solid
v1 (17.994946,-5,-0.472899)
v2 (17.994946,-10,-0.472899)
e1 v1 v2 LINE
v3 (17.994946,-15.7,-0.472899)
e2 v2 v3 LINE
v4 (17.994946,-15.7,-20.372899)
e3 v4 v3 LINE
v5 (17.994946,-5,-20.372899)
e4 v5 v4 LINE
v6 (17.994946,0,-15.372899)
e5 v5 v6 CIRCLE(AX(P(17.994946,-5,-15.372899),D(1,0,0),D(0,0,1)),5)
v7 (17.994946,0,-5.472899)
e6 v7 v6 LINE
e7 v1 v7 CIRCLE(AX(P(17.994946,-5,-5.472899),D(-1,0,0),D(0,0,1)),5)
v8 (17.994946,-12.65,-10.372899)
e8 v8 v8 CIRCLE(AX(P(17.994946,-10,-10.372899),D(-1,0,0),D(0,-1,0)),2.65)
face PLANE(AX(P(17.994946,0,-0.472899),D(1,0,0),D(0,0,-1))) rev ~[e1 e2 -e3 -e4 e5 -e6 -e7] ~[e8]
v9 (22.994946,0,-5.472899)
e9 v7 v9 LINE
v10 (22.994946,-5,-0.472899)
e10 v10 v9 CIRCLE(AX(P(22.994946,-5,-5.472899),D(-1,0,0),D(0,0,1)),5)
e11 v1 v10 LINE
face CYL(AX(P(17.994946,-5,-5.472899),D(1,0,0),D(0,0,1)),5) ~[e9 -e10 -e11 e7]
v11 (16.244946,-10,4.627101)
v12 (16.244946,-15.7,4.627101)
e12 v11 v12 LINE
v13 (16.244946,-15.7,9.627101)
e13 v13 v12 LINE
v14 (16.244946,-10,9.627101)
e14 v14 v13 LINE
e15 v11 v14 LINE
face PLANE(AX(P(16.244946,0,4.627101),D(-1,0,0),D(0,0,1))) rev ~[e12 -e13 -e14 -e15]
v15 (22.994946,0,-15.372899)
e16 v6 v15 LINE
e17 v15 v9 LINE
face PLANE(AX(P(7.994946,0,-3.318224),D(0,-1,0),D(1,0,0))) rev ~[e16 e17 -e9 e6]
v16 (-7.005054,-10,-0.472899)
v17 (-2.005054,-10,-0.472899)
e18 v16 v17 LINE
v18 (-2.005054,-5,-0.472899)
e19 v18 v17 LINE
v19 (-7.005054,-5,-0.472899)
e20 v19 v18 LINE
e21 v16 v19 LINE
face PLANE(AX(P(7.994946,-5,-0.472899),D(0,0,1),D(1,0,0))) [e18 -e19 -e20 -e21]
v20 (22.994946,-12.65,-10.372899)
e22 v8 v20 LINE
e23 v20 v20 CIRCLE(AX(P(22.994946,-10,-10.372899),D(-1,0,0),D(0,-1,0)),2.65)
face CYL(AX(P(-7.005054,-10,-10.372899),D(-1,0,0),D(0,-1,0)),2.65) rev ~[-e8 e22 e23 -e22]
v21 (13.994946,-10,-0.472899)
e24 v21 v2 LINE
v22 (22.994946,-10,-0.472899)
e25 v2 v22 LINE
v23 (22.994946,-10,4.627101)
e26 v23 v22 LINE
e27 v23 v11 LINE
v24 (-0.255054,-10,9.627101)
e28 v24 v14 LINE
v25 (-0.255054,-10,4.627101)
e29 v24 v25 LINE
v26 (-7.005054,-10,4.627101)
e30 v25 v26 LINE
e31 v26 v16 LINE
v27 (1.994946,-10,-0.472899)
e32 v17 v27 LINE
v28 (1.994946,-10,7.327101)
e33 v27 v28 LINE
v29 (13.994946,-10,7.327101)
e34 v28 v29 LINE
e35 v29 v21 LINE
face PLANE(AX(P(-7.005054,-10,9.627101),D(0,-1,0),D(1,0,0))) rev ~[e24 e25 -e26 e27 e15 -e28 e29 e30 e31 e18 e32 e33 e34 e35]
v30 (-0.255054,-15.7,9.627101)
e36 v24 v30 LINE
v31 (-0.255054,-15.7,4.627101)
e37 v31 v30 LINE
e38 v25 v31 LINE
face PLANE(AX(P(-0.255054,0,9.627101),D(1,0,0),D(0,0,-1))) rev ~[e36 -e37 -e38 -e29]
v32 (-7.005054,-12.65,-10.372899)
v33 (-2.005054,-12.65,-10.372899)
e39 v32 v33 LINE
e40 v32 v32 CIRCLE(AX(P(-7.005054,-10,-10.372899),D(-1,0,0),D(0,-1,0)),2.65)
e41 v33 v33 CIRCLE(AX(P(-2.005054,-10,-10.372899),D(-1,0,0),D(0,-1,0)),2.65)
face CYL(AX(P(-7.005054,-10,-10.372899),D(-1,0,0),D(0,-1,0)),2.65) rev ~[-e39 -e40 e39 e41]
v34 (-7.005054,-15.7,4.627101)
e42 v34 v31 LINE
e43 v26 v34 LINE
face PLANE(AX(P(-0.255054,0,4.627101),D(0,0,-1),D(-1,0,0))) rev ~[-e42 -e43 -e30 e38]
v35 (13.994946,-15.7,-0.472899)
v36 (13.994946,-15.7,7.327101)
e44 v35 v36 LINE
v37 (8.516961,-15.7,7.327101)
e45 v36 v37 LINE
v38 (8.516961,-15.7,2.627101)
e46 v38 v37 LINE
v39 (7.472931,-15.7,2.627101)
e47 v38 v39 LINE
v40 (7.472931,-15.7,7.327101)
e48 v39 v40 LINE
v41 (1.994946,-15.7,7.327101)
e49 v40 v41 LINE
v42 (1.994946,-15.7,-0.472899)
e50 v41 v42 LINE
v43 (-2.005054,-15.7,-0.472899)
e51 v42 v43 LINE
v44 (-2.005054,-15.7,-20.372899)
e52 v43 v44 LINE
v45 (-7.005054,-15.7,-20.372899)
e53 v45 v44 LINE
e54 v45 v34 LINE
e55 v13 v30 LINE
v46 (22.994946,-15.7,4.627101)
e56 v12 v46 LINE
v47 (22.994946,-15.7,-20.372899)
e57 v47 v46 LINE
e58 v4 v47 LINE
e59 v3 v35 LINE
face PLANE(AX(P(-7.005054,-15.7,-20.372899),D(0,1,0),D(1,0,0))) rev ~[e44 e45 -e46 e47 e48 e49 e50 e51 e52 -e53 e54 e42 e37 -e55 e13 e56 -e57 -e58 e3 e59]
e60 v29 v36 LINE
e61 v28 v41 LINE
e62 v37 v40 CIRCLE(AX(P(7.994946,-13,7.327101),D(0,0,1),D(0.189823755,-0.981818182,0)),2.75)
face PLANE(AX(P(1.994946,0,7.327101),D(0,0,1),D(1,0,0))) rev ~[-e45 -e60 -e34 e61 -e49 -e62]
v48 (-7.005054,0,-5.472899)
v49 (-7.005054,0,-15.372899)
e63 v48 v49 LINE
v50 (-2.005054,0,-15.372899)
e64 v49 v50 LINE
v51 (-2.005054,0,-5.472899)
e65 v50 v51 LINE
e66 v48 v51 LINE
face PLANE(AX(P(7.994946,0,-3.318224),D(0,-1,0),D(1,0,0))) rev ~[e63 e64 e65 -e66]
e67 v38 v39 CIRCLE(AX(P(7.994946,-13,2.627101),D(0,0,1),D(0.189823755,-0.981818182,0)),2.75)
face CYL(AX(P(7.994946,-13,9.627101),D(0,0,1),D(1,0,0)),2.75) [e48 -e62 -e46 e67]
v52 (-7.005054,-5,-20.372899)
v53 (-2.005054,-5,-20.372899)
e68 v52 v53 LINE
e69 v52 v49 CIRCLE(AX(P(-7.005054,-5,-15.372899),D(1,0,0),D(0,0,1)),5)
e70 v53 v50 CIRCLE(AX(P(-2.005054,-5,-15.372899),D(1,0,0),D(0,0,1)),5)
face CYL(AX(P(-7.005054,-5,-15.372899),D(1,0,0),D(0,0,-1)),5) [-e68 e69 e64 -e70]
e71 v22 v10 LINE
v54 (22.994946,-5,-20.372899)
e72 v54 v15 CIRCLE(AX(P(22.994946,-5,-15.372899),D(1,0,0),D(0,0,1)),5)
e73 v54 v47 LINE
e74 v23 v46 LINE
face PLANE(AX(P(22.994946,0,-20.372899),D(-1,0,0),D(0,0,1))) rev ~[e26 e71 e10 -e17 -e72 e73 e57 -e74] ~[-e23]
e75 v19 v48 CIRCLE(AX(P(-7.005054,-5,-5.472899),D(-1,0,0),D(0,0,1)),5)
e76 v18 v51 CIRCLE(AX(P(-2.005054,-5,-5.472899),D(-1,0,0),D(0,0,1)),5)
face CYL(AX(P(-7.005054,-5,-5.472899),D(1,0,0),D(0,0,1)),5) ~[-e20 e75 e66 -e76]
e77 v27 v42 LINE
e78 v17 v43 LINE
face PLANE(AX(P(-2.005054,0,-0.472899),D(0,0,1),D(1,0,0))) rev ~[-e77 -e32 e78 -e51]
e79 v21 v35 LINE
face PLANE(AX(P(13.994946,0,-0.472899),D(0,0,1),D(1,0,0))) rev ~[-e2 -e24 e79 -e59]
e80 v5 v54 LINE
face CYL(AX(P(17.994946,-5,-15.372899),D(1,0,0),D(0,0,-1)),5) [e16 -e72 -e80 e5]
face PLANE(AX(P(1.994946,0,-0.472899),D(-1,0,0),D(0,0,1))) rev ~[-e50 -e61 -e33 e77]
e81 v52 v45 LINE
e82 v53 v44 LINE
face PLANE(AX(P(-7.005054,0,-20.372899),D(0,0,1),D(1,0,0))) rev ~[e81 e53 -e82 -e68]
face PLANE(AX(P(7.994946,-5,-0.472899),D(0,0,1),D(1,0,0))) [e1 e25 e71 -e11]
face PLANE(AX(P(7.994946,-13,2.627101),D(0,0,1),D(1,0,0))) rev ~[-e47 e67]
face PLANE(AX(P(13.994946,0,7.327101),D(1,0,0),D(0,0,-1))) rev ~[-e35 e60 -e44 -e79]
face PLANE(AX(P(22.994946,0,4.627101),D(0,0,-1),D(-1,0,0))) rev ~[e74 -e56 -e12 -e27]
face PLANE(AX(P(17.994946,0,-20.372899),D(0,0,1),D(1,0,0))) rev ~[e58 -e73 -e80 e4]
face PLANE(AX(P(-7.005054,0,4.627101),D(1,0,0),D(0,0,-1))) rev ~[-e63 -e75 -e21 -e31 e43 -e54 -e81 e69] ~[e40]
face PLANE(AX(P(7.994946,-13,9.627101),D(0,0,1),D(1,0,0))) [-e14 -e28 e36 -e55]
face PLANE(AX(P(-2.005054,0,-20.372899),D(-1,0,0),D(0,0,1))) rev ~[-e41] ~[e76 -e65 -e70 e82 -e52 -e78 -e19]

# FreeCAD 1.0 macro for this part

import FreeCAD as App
import Part
import Sketcher


def edges_at(feature, points):
    """Names of the edges that pass closest to the given points."""
    edges = feature.Shape.Edges
    near = lambda p: min(range(len(edges)), key=lambda i: edges[i].distToShape(Part.Vertex(*p))[0])
    return sorted({f"Edge{near(p) + 1}" for p in points})

doc = App.newDocument("Part")
body = doc.addObject("PartDesign::Body", "Body")

# Sketch on XZ plane
sketch1 = body.newObject("Sketcher::SketchObject", "Sketch")
sketch1.AttachmentSupport = (doc.getObject("XZ_Plane"), [""])
sketch1.MapMode = "FlatFace"
sketch1.addGeometry(Part.LineSegment(App.Vector(-0.255054, 4.627101, 0), App.Vector(-7.005054, 4.627101, 0)), False)
sketch1.addGeometry(Part.LineSegment(App.Vector(-7.005054, 4.627101, 0), App.Vector(-7.005054, -20.372899, 0)), False)
sketch1.addGeometry(Part.LineSegment(App.Vector(-7.005054, -20.372899, 0), App.Vector(-2.005054, -20.372899, 0)), False)
sketch1.addGeometry(Part.LineSegment(App.Vector(-2.005054, -20.372899, 0), App.Vector(-2.005054, -0.472899, 0)), False)
sketch1.addGeometry(Part.LineSegment(App.Vector(-2.005054, -0.472899, 0), App.Vector(1.994946, -0.472899, 0)), False)
sketch1.addGeometry(Part.LineSegment(App.Vector(1.994946, -0.472899, 0), App.Vector(1.994946, 7.327101, 0)), False)
sketch1.addGeometry(Part.LineSegment(App.Vector(1.994946, 7.327101, 0), App.Vector(13.994946, 7.327101, 0)), False)
sketch1.addGeometry(Part.LineSegment(App.Vector(13.994946, 7.327101, 0), App.Vector(13.994946, -0.472899, 0)), False)
sketch1.addGeometry(Part.LineSegment(App.Vector(13.994946, -0.472899, 0), App.Vector(17.994946, -0.472899, 0)), False)
sketch1.addGeometry(Part.LineSegment(App.Vector(17.994946, -0.472899, 0), App.Vector(17.994946, -20.372899, 0)), False)
sketch1.addGeometry(Part.LineSegment(App.Vector(17.994946, -20.372899, 0), App.Vector(22.994946, -20.372899, 0)), False)
sketch1.addGeometry(Part.LineSegment(App.Vector(22.994946, -20.372899, 0), App.Vector(22.994946, 4.627101, 0)), False)
sketch1.addGeometry(Part.LineSegment(App.Vector(22.994946, 4.627101, 0), App.Vector(16.244946, 4.627101, 0)), False)
sketch1.addGeometry(Part.LineSegment(App.Vector(16.244946, 4.627101, 0), App.Vector(16.244946, 9.627101, 0)), False)
sketch1.addGeometry(Part.LineSegment(App.Vector(16.244946, 9.627101, 0), App.Vector(-0.255054, 9.627101, 0)), False)
sketch1.addGeometry(Part.LineSegment(App.Vector(-0.255054, 9.627101, 0), App.Vector(-0.255054, 4.627101, 0)), False)
sketch1.addConstraint(Sketcher.Constraint("Coincident", 0, 2, 1, 1))
sketch1.addConstraint(Sketcher.Constraint("Coincident", 1, 2, 2, 1))
sketch1.addConstraint(Sketcher.Constraint("Coincident", 2, 2, 3, 1))
sketch1.addConstraint(Sketcher.Constraint("Coincident", 3, 2, 4, 1))
sketch1.addConstraint(Sketcher.Constraint("Coincident", 4, 2, 5, 1))
sketch1.addConstraint(Sketcher.Constraint("Coincident", 5, 2, 6, 1))
sketch1.addConstraint(Sketcher.Constraint("Coincident", 6, 2, 7, 1))
sketch1.addConstraint(Sketcher.Constraint("Coincident", 7, 2, 8, 1))
sketch1.addConstraint(Sketcher.Constraint("Coincident", 8, 2, 9, 1))
sketch1.addConstraint(Sketcher.Constraint("Coincident", 9, 2, 10, 1))
sketch1.addConstraint(Sketcher.Constraint("Coincident", 10, 2, 11, 1))
sketch1.addConstraint(Sketcher.Constraint("Coincident", 11, 2, 12, 1))
sketch1.addConstraint(Sketcher.Constraint("Coincident", 12, 2, 13, 1))
sketch1.addConstraint(Sketcher.Constraint("Coincident", 13, 2, 14, 1))
sketch1.addConstraint(Sketcher.Constraint("Coincident", 14, 2, 15, 1))
sketch1.addConstraint(Sketcher.Constraint("Coincident", 15, 2, 0, 1))
sketch1.addConstraint(Sketcher.Constraint("Horizontal", 0))
sketch1.addConstraint(Sketcher.Constraint("Vertical", 1))
sketch1.addConstraint(Sketcher.Constraint("Horizontal", 2))
sketch1.addConstraint(Sketcher.Constraint("Vertical", 3))
sketch1.addConstraint(Sketcher.Constraint("Horizontal", 4))
sketch1.addConstraint(Sketcher.Constraint("Vertical", 5))
sketch1.addConstraint(Sketcher.Constraint("Horizontal", 6))
sketch1.addConstraint(Sketcher.Constraint("Vertical", 7))
sketch1.addConstraint(Sketcher.Constraint("Horizontal", 8))
sketch1.addConstraint(Sketcher.Constraint("Vertical", 9))
sketch1.addConstraint(Sketcher.Constraint("Horizontal", 10))
sketch1.addConstraint(Sketcher.Constraint("Vertical", 11))
sketch1.addConstraint(Sketcher.Constraint("Horizontal", 12))
sketch1.addConstraint(Sketcher.Constraint("Vertical", 13))
sketch1.addConstraint(Sketcher.Constraint("Horizontal", 14))
sketch1.addConstraint(Sketcher.Constraint("Vertical", 15))
sketch1.addConstraint(Sketcher.Constraint("Horizontal", 4, 2, 7, 2))
sketch1.addConstraint(Sketcher.Constraint("Horizontal", 2, 2, 9, 2))
sketch1.addConstraint(Sketcher.Constraint("Horizontal", 0, 2, 11, 2))
sketch1.addConstraint(Sketcher.Constraint("Equal", 4, 8))
sketch1.addConstraint(Sketcher.Constraint("Equal", 2, 10))
sketch1.addConstraint(Sketcher.Constraint("Equal", 0, 12))
sketch1.addConstraint(Sketcher.Constraint("Equal", 10, 13))
sketch1.addConstraint(Sketcher.Constraint("DistanceX", 2, 1, 2, 2, 5.0))
sketch1.addConstraint(Sketcher.Constraint("DistanceX", 4, 1, 4, 2, 4.0))
sketch1.addConstraint(Sketcher.Constraint("DistanceX", 6, 1, 6, 2, 12.0))
sketch1.addConstraint(Sketcher.Constraint("DistanceY", 1, 2, 1, 1, 25.0))
sketch1.addConstraint(Sketcher.Constraint("DistanceX", 14, 2, 14, 1, 16.5))
sketch1.addConstraint(Sketcher.Constraint("DistanceY", 3, 1, 3, 2, 19.9))
sketch1.addConstraint(Sketcher.Constraint("DistanceY", 5, 1, 5, 2, 7.8))
sketch1.addConstraint(Sketcher.Constraint("DistanceY", -1, 1, 0, 2, 4.627101))
sketch1.addConstraint(Sketcher.Constraint("DistanceX", 0, 2, -1, 1, 7.005054))
pad1 = body.newObject("PartDesign::Pad", "Pad")
pad1.Profile = sketch1
pad1.Length = 20

# Sketch on YZ plane
sketch2 = body.newObject("Sketcher::SketchObject", "Sketch001")
sketch2.AttachmentSupport = (doc.getObject("YZ_Plane"), [""])
sketch2.MapMode = "FlatFace"
sketch2.AttachmentOffset = App.Placement(App.Vector(0, 0, -7.005054), App.Rotation())
sketch2.addGeometry(Part.Circle(App.Vector(-10, -10.372899, 0), App.Vector(0, 0, 1), 2.65), False)
sketch2.addConstraint(Sketcher.Constraint("Diameter", 0, 5.3))
sketch2.addConstraint(Sketcher.Constraint("DistanceX", 0, 3, -1, 1, 10.0))
sketch2.addConstraint(Sketcher.Constraint("DistanceY", 0, 3, -1, 1, 10.372899))
pocket1 = body.newObject("PartDesign::Pocket", "Pocket")
pocket1.Profile = sketch2
pocket1.Type = "ThroughAll"
pocket1.Reversed = True

# Sketch on XY plane
sketch3 = body.newObject("Sketcher::SketchObject", "Sketch002")
sketch3.AttachmentSupport = (doc.getObject("XY_Plane"), [""])
sketch3.MapMode = "FlatFace"
sketch3.AttachmentOffset = App.Placement(App.Vector(0, 0, 9.627101), App.Rotation())
sketch3.addGeometry(Part.Circle(App.Vector(7.994946, -13, 0), App.Vector(0, 0, 1), 2.75), False)
sketch3.addConstraint(Sketcher.Constraint("Diameter", 0, 5.5))
sketch3.addConstraint(Sketcher.Constraint("DistanceY", 0, 3, -1, 1, 13.0))
sketch3.addConstraint(Sketcher.Constraint("DistanceX", -1, 1, 0, 3, 7.994946))
pad2 = body.newObject("PartDesign::Pad", "Pad001")
pad2.Profile = sketch3
pad2.Length = 7
pad2.Reversed = True

# Sketch on XY plane
sketch4 = body.newObject("Sketcher::SketchObject", "Sketch003")
sketch4.AttachmentSupport = (doc.getObject("XY_Plane"), [""])
sketch4.MapMode = "FlatFace"
sketch4.AttachmentOffset = App.Placement(App.Vector(0, 0, 9.627101), App.Rotation())
sketch4.addGeometry(Part.LineSegment(App.Vector(-7.005054, 0, 0), App.Vector(-7.005054, -10, 0)), False)
sketch4.addGeometry(Part.LineSegment(App.Vector(-7.005054, -10, 0), App.Vector(22.994946, -10, 0)), False)
sketch4.addGeometry(Part.LineSegment(App.Vector(22.994946, -10, 0), App.Vector(22.994946, 0, 0)), False)
sketch4.addGeometry(Part.LineSegment(App.Vector(22.994946, 0, 0), App.Vector(-7.005054, 0, 0)), False)
sketch4.addConstraint(Sketcher.Constraint("Coincident", 0, 2, 1, 1))
sketch4.addConstraint(Sketcher.Constraint("Coincident", 1, 2, 2, 1))
sketch4.addConstraint(Sketcher.Constraint("Coincident", 2, 2, 3, 1))
sketch4.addConstraint(Sketcher.Constraint("Coincident", 3, 2, 0, 1))
sketch4.addConstraint(Sketcher.Constraint("Vertical", 0))
sketch4.addConstraint(Sketcher.Constraint("Horizontal", 1))
sketch4.addConstraint(Sketcher.Constraint("Vertical", 2))
sketch4.addConstraint(Sketcher.Constraint("Horizontal", 3))
sketch4.addConstraint(Sketcher.Constraint("PointOnObject", 2, 2, -1))
sketch4.addConstraint(Sketcher.Constraint("DistanceX", 1, 1, 1, 2, 30.0))
sketch4.addConstraint(Sketcher.Constraint("DistanceY", 0, 2, 0, 1, 10.0))
sketch4.addConstraint(Sketcher.Constraint("DistanceX", 0, 2, -1, 1, 7.005054))
pocket2 = body.newObject("PartDesign::Pocket", "Pocket001")
pocket2.Profile = sketch4
pocket2.Length = 10.1
doc.recompute()

fillet = body.newObject("PartDesign::Fillet", "Fillet")
fillet.Base = (pocket2, edges_at(pocket2, [(20.495, 0, -0.473), (-4.505, 0, -0.473)]))
fillet.Radius = 5

# Sketch on XY plane
sketch5 = body.newObject("Sketcher::SketchObject", "Sketch004")
sketch5.AttachmentSupport = (doc.getObject("XY_Plane"), [""])
sketch5.MapMode = "FlatFace"
sketch5.AttachmentOffset = App.Placement(App.Vector(0, 0, -20.372899), App.Rotation())
sketch5.addGeometry(Part.LineSegment(App.Vector(-7.005054, -20, 0), App.Vector(-7.005054, -15.7, 0)), False)
sketch5.addGeometry(Part.LineSegment(App.Vector(-7.005054, -15.7, 0), App.Vector(22.994946, -15.7, 0)), False)
sketch5.addGeometry(Part.LineSegment(App.Vector(22.994946, -15.7, 0), App.Vector(22.994946, -20, 0)), False)
sketch5.addGeometry(Part.LineSegment(App.Vector(22.994946, -20, 0), App.Vector(-7.005054, -20, 0)), False)
sketch5.addConstraint(Sketcher.Constraint("Coincident", 0, 2, 1, 1))
sketch5.addConstraint(Sketcher.Constraint("Coincident", 1, 2, 2, 1))
sketch5.addConstraint(Sketcher.Constraint("Coincident", 2, 2, 3, 1))
sketch5.addConstraint(Sketcher.Constraint("Coincident", 3, 2, 0, 1))
sketch5.addConstraint(Sketcher.Constraint("Vertical", 0))
sketch5.addConstraint(Sketcher.Constraint("Horizontal", 1))
sketch5.addConstraint(Sketcher.Constraint("Vertical", 2))
sketch5.addConstraint(Sketcher.Constraint("Horizontal", 3))
sketch5.addConstraint(Sketcher.Constraint("DistanceX", 1, 1, 1, 2, 30.0))
sketch5.addConstraint(Sketcher.Constraint("DistanceY", 0, 1, 0, 2, 4.3))
sketch5.addConstraint(Sketcher.Constraint("DistanceY", 2, 2, -1, 1, 20.0))
sketch5.addConstraint(Sketcher.Constraint("DistanceX", 0, 2, -1, 1, 7.005054))
pocket3 = body.newObject("PartDesign::Pocket", "Pocket002")
pocket3.Profile = sketch5
pocket3.Type = "ThroughAll"
pocket3.Reversed = True
doc.recompute()

fillet2 = body.newObject("PartDesign::Fillet", "Fillet001")
fillet2.Base = (pocket3, edges_at(pocket3, [(20.495, 0, -20.373), (-4.505, 0, -20.373)]))
fillet2.Radius = 5

doc.recompute()
